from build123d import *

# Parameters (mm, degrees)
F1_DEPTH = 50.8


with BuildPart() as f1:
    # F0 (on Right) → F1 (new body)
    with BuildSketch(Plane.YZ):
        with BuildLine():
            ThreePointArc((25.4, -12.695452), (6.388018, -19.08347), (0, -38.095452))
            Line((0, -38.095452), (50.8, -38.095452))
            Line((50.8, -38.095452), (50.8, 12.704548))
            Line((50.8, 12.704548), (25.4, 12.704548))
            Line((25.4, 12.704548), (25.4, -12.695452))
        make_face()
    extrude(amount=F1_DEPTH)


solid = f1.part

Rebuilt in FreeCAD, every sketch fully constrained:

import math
import FreeCAD as App
import Part
import Sketcher
from FreeCAD import Vector
Q = App.Units.Quantity

doc = App.newDocument("Part")
body = doc.addObject("PartDesign::Body", "Body")

sketch1 = body.newObject("Sketcher::SketchObject", "Sketch")
sketch1.AttachmentSupport = (doc.getObject("YZ_Plane"), [""])
sketch1.MapMode = "FlatFace"
sketch1.addGeometry(Part.ArcOfCircle(Part.Circle(Vector(22, -35, 0), Vector(0, 0, 1), 23), math.radians(82), math.radians(188)), False)
sketch1.addGeometry(Part.LineSegment(Vector(0, -38, 0), Vector(51, -38, 0)), False)
sketch1.addGeometry(Part.LineSegment(Vector(51, -38, 0), Vector(51, 13, 0)), False)
sketch1.addGeometry(Part.LineSegment(Vector(51, 13, 0), Vector(25, 13, 0)), False)
sketch1.addGeometry(Part.LineSegment(Vector(25, 13, 0), Vector(25, -13, 0)), False)
sketch1.addConstraint(Sketcher.Constraint("Coincident", 0, 2, 1, 1))
sketch1.addConstraint(Sketcher.Constraint("Coincident", 1, 2, 2, 1))
sketch1.addConstraint(Sketcher.Constraint("Coincident", 2, 2, 3, 1))
sketch1.addConstraint(Sketcher.Constraint("Coincident", 3, 2, 4, 1))
sketch1.addConstraint(Sketcher.Constraint("Coincident", 4, 2, 0, 1))
sketch1.addConstraint(Sketcher.Constraint("Horizontal", 1))
sketch1.addConstraint(Sketcher.Constraint("Vertical", 2))
sketch1.addConstraint(Sketcher.Constraint("Horizontal", 3))
sketch1.addConstraint(Sketcher.Constraint("Vertical", 4))
sketch1.addConstraint(Sketcher.Constraint("PointOnObject", 0, 2, -2))
sketch1.addConstraint(Sketcher.Constraint("Equal", 1, 2))
sketch1.addConstraint(Sketcher.Constraint("Equal", 3, 4))
sketch1.addConstraint(Sketcher.Constraint("DistanceX", 1, 1, 1, 2, Q("2 in")))
sketch1.addConstraint(Sketcher.Constraint("DistanceX", 3, 2, 3, 1, Q("1 in")))
sketch1.addConstraint(Sketcher.Constraint("Radius", 0, Q("22.531936 mm")))
sketch1.addConstraint(Sketcher.Constraint("DistanceY", 0, 2, -1, 1, Q("38.095452 mm")))
pad1 = body.newObject("PartDesign::Pad", "Pad")
pad1.Profile = sketch1
pad1.Length = Q("2 in")

doc.recompute()
